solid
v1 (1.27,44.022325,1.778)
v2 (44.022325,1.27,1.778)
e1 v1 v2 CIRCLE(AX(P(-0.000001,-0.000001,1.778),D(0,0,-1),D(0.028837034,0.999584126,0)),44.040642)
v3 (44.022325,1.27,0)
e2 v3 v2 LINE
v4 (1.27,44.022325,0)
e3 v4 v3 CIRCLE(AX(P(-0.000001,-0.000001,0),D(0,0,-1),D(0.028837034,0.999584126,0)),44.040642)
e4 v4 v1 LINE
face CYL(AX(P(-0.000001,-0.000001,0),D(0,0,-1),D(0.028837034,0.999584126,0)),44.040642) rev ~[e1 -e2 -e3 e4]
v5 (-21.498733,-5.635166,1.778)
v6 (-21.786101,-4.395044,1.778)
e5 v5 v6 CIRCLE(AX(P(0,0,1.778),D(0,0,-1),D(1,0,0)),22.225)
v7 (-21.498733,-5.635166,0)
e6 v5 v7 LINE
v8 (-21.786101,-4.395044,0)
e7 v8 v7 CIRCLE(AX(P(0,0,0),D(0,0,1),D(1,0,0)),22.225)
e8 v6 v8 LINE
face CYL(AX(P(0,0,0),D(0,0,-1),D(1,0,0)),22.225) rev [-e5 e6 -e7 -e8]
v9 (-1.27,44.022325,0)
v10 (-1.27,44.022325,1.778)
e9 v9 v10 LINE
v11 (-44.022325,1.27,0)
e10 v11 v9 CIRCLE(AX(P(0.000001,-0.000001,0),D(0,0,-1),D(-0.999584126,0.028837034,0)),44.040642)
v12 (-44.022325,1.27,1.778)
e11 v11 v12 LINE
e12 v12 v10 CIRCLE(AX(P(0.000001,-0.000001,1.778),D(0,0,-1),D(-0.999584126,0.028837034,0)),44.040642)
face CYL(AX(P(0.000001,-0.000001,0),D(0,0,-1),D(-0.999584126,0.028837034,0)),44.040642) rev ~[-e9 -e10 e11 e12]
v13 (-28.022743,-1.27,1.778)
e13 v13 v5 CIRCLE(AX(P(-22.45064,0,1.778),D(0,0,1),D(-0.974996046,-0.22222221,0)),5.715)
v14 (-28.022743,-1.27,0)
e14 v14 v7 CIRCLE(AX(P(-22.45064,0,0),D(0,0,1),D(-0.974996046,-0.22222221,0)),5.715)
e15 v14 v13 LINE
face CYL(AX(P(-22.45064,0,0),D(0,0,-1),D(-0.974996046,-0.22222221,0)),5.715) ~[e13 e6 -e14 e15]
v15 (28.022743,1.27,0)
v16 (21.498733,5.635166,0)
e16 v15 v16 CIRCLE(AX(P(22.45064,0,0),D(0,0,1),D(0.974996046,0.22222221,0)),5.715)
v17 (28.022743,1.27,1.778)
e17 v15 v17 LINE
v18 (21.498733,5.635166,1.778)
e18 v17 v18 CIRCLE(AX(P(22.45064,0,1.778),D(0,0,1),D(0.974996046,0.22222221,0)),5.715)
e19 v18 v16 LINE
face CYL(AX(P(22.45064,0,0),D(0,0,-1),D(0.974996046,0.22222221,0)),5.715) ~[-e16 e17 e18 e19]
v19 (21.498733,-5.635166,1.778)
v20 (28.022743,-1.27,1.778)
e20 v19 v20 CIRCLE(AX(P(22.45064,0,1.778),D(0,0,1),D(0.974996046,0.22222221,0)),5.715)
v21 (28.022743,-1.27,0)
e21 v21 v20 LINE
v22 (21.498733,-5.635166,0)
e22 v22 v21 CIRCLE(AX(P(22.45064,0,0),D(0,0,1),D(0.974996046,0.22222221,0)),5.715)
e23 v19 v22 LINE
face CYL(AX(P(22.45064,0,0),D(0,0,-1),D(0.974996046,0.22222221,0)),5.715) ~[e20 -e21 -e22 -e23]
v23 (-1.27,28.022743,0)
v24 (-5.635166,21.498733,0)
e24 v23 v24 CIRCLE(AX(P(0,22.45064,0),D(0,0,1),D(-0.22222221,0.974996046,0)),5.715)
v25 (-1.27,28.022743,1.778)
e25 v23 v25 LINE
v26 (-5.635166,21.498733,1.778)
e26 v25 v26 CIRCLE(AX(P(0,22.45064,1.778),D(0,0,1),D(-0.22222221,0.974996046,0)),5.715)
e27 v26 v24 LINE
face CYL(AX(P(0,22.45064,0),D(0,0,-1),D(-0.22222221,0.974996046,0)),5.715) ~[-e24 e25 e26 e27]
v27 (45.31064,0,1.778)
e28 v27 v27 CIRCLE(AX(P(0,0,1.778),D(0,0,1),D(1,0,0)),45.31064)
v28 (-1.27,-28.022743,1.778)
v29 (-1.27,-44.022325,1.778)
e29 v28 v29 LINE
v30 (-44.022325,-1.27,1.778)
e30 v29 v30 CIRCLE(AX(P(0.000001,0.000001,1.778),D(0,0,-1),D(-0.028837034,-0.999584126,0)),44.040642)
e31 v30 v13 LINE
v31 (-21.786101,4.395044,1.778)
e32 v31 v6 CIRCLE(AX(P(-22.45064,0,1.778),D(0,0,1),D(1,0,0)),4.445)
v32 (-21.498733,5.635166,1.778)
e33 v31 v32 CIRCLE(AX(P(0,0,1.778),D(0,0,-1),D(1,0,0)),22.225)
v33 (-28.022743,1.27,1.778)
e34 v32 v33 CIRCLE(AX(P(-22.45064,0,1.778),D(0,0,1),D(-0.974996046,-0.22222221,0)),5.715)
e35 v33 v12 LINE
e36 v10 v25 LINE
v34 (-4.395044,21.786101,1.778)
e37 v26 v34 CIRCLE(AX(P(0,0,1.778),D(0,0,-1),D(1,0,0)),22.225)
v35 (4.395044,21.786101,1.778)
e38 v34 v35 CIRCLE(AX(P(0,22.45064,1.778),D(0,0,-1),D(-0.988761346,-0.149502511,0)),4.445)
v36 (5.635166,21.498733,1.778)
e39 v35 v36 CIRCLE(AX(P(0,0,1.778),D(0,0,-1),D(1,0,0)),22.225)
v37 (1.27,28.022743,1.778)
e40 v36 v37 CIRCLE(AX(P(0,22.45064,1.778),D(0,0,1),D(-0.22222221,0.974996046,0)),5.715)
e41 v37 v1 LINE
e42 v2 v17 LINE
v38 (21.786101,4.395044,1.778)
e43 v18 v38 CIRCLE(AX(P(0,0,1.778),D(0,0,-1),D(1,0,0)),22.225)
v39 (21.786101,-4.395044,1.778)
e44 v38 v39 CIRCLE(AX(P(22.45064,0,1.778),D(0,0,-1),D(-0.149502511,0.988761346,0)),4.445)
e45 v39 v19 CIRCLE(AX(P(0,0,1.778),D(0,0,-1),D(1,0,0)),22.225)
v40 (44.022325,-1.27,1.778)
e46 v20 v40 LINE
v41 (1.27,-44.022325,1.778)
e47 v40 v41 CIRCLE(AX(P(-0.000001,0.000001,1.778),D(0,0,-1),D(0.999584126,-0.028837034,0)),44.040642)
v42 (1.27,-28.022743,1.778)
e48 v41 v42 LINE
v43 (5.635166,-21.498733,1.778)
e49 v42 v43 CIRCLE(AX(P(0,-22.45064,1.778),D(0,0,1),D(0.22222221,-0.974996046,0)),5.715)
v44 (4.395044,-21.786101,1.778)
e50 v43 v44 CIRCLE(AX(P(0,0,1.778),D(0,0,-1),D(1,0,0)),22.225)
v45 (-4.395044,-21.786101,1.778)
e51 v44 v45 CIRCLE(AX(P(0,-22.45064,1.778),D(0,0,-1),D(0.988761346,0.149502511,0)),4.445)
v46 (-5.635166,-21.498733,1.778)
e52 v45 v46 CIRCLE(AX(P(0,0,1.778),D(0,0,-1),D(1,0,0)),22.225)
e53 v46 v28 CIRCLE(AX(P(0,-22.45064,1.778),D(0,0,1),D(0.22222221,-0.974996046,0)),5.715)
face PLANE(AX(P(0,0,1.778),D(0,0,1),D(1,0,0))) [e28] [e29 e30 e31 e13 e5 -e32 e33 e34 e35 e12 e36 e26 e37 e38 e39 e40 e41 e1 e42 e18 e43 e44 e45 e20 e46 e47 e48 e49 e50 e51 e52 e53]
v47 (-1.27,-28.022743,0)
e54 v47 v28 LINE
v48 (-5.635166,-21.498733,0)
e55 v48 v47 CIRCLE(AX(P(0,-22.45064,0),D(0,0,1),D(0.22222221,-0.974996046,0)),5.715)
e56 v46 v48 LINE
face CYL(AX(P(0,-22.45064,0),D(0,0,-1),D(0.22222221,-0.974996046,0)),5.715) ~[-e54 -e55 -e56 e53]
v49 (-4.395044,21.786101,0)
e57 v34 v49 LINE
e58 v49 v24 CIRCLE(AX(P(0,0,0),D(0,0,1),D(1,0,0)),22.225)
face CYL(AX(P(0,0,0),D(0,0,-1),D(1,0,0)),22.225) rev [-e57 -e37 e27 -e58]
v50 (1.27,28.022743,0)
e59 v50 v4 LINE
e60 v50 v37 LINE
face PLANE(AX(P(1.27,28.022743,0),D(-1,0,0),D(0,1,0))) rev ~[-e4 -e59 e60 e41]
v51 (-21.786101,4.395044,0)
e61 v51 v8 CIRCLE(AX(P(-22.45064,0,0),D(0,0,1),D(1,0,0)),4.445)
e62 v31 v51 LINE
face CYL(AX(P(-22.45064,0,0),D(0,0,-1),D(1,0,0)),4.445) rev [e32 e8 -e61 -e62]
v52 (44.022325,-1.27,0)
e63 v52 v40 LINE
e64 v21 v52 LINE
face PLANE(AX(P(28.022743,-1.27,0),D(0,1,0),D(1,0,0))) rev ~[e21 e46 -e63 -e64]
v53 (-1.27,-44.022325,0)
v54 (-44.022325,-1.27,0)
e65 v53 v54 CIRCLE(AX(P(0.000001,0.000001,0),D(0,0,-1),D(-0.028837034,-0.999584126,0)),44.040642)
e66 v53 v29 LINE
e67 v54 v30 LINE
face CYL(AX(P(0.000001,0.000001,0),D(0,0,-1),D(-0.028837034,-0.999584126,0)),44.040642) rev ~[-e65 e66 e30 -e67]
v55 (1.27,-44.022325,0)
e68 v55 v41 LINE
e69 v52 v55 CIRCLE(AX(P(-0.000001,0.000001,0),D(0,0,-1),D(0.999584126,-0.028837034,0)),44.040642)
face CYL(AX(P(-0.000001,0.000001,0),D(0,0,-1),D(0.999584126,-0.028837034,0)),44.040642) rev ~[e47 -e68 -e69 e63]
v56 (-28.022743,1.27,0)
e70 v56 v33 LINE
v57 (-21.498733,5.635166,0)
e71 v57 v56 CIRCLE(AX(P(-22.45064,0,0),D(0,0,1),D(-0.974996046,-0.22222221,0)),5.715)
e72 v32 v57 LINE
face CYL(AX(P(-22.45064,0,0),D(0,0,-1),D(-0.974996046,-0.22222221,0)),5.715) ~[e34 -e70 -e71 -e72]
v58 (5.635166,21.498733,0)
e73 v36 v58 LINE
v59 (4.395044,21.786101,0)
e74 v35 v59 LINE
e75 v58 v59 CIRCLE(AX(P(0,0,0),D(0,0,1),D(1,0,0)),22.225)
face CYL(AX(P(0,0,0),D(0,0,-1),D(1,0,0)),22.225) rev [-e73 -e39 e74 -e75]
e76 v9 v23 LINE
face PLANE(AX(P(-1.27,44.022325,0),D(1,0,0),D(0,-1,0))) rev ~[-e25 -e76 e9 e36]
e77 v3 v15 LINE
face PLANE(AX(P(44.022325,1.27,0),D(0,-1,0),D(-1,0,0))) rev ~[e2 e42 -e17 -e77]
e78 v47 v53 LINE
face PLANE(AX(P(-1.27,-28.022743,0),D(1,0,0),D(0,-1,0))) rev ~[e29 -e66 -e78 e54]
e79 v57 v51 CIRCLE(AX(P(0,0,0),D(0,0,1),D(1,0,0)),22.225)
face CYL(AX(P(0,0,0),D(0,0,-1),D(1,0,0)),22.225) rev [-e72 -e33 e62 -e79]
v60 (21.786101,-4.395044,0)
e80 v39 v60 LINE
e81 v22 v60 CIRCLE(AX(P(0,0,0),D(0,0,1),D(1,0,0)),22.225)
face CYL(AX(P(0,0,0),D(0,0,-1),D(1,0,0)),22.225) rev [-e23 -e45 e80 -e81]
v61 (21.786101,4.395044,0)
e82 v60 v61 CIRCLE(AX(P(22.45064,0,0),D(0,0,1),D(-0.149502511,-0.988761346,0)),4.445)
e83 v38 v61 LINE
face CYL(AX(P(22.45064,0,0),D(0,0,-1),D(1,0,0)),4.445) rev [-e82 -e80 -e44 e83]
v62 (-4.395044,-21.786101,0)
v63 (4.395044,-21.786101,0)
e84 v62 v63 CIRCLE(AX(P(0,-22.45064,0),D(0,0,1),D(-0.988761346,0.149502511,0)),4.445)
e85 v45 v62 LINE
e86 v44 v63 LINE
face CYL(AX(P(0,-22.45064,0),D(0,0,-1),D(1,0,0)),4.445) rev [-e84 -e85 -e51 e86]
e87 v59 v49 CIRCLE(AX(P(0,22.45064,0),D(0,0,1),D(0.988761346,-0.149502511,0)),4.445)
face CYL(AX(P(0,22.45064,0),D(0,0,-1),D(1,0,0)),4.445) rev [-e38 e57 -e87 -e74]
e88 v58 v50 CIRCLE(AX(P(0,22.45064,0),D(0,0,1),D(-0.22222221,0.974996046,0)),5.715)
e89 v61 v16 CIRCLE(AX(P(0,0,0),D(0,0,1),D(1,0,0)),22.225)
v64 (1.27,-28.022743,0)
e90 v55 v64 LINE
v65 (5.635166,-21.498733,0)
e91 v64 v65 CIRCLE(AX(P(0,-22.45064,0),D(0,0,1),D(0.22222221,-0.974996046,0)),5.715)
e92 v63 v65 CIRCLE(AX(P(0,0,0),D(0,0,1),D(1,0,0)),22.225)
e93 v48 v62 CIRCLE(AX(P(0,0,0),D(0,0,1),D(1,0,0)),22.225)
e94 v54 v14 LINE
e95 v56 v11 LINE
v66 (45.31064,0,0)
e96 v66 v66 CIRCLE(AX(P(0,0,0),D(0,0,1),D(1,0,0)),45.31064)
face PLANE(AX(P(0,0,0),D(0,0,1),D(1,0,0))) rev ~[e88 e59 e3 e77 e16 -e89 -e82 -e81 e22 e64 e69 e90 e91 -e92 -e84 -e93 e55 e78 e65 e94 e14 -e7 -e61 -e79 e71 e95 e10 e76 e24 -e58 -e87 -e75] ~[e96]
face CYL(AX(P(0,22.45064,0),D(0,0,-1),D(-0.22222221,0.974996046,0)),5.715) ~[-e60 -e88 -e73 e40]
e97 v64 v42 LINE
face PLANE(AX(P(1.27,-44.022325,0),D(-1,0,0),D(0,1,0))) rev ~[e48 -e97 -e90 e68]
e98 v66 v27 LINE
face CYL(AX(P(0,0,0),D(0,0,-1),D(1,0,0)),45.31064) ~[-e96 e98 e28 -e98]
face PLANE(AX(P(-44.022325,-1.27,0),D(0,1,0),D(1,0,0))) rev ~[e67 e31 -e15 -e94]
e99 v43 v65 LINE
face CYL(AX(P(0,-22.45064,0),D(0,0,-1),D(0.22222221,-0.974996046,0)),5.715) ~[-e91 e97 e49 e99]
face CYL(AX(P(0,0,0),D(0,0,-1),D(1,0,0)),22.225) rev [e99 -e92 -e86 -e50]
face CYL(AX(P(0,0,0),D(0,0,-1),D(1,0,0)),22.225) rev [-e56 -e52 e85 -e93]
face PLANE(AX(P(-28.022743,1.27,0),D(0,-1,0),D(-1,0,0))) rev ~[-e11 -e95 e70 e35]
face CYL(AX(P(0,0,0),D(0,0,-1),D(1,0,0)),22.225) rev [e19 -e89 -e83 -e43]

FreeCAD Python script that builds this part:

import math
import FreeCAD as App
import Part
import Sketcher

V = App.Vector
Q = App.Units.Quantity

doc = App.newDocument("Part")
body = doc.addObject("PartDesign::Body", "Body")

sketch1 = body.newObject("Sketcher::SketchObject", "Sketch")
sketch1.AttachmentSupport = (doc.getObject("XY_Plane"), [""])
sketch1.MapMode = "FlatFace"
sketch1.addGeometry([
    Part.Circle(V(0, 0, 0), V(0, 0, 1), 45.31064),
    Part.Circle(V(0, -22.45064, 0), V(0, 0, 1), 4.445),
    Part.Circle(V(-22.45064, 0, 0), V(0, 0, 1), 4.445),
    Part.Circle(V(0, 22.45064, 0), V(0, 0, 1), 4.445),
    Part.ArcOfCircle(Part.Circle(V(0.000001, -0.000001, 0), V(0, 0, 1), 44.040642), math.radians(91.652469), math.radians(178.347531)),
    Part.LineSegment(V(-1.27, 44.022325, 0), V(-1.27, 28.022743, 0)),
    Part.ArcOfCircle(Part.Circle(V(0, 22.45064, 0), V(0, 0, 1), 5.715), math.radians(102.839588), math.radians(437.160412)),
    Part.LineSegment(V(1.27, 28.022743, 0), V(1.27, 44.022325, 0)),
    Part.ArcOfCircle(Part.Circle(V(-0.000001, -0.000001, 0), V(0, 0, 1), 44.040642), math.radians(1.652469), math.radians(88.347531)),
    Part.LineSegment(V(44.022325, 1.27, 0), V(28.022743, 1.27, 0)),
    Part.ArcOfCircle(Part.Circle(V(22.45064, 0, 0), V(0, 0, 1), 5.715), math.radians(12.839588), math.radians(347.160412)),
    Part.LineSegment(V(28.022743, -1.27, 0), V(44.022325, -1.27, 0)),
    Part.ArcOfCircle(Part.Circle(V(-0.000001, 0.000001, 0), V(0, 0, 1), 44.040642), math.radians(-88.347531), math.radians(-1.652469)),
    Part.LineSegment(V(1.27, -44.022325, 0), V(1.27, -28.022743, 0)),
    Part.ArcOfCircle(Part.Circle(V(0, -22.45064, 0), V(0, 0, 1), 5.715), math.radians(-77.160412), math.radians(257.160412)),
    Part.LineSegment(V(-1.27, -28.022743, 0), V(-1.27, -44.022325, 0)),
    Part.ArcOfCircle(Part.Circle(V(0.000001, 0.000001, 0), V(0, 0, 1), 44.040642), math.radians(-178.347531), math.radians(-91.652469)),
    Part.LineSegment(V(-44.022325, -1.27, 0), V(-28.022743, -1.27, 0)),
    Part.ArcOfCircle(Part.Circle(V(-22.45064, 0, 0), V(0, 0, 1), 5.715), math.radians(-167.160412), math.radians(167.160412)),
    Part.LineSegment(V(-28.022743, 1.27, 0), V(-44.022325, 1.27, 0)),
    Part.Circle(V(22.45064, 0, 0), V(0, 0, 1), 4.445),
], False)
sketch1.addConstraint([
    Sketcher.Constraint("Coincident", 4, 1, 5, 1),
    Sketcher.Constraint("Coincident", 5, 2, 6, 1),
    Sketcher.Constraint("Coincident", 6, 2, 7, 1),
    Sketcher.Constraint("Coincident", 7, 2, 8, 2),
    Sketcher.Constraint("Coincident", 8, 1, 9, 1),
    Sketcher.Constraint("Coincident", 9, 2, 10, 1),
    Sketcher.Constraint("Coincident", 10, 2, 11, 1),
    Sketcher.Constraint("Coincident", 11, 2, 12, 2),
    Sketcher.Constraint("Coincident", 12, 1, 13, 1),
    Sketcher.Constraint("Coincident", 13, 2, 14, 1),
    Sketcher.Constraint("Coincident", 14, 2, 15, 1),
    Sketcher.Constraint("Coincident", 15, 2, 16, 2),
    Sketcher.Constraint("Coincident", 16, 1, 17, 1),
    Sketcher.Constraint("Coincident", 17, 2, 18, 1),
    Sketcher.Constraint("Coincident", 18, 2, 19, 1),
    Sketcher.Constraint("Coincident", 19, 2, 4, 2),
    Sketcher.Constraint("Vertical", 5),
    Sketcher.Constraint("Vertical", 7),
    Sketcher.Constraint("Horizontal", 9),
    Sketcher.Constraint("Horizontal", 11),
    Sketcher.Constraint("Vertical", 13),
    Sketcher.Constraint("Vertical", 15),
    Sketcher.Constraint("Horizontal", 17),
    Sketcher.Constraint("Horizontal", 19),
    Sketcher.Constraint("Coincident", 0, 3, -1, 1),
    Sketcher.Constraint("Coincident", 4, 3, -1, 1),
    Sketcher.Constraint("Coincident", 8, 3, -1, 1),
    Sketcher.Constraint("Coincident", 12, 3, -1, 1),
    Sketcher.Constraint("Coincident", 16, 3, -1, 1),
    Sketcher.Constraint("Coincident", 6, 3, 3, 3),
    Sketcher.Constraint("Coincident", 14, 3, 1, 3),
    Sketcher.Constraint("Coincident", 18, 3, 2, 3),
    Sketcher.Constraint("Coincident", 20, 3, 10, 3),
    Sketcher.Constraint("Equal", 1, 2),
    Sketcher.Constraint("Equal", 2, 3),
    Sketcher.Constraint("Equal", 4, 8),
    Sketcher.Constraint("Equal", 6, 10),
    Sketcher.Constraint("Equal", 8, 12),
    Sketcher.Constraint("Equal", 10, 14),
    Sketcher.Constraint("Equal", 12, 16),
    Sketcher.Constraint("Equal", 14, 18),
    Sketcher.Constraint("Equal", 3, 20),
    Sketcher.Constraint("Symmetric", 1, 3, 3, 3, -1, 1),
    Sketcher.Constraint("Symmetric", 2, 3, 10, 3, -1, 1),
    Sketcher.Constraint("Symmetric", 5, 2, 6, 2, -2),
    Sketcher.Constraint("Symmetric", 10, 2, 17, 2, -2),
    Sketcher.Constraint("Horizontal", 13, 2, 14, 2),
    Sketcher.Constraint("Horizontal", 9, 2, 18, 2),
    Sketcher.Constraint("Vertical", 9, 2, 10, 2),
    Sketcher.Constraint("Vertical", 7, 2, 12, 1),
    Sketcher.Constraint("Equal", 19, 5),
    Sketcher.Constraint("Diameter", 1, Q("0.35 in")),
    Sketcher.Constraint("Radius", 6, Q("0.225 in")),
    Sketcher.Constraint("DistanceX", 5, 2, 6, 2, Q("0.1 in")),
    Sketcher.Constraint("DistanceY", 10, 2, 9, 2, Q("0.1 in")),
    Sketcher.Constraint("Diameter", 0, Q("90.62128 mm")),
    Sketcher.Constraint("Radius", 4, Q("44.040642 mm")),
    Sketcher.Constraint("DistanceX", 9, 2, 9, 1, Q("15.999582 mm")),
])
pad1 = body.newObject("PartDesign::Pad", "Pad")
pad1.Profile = sketch1
pad1.Length = Q("0.07 in")

sketch2 = body.newObject("Sketcher::SketchObject", "Sketch001")
sketch2.AttachmentSupport = (doc.getObject("XY_Plane"), [""])
sketch2.MapMode = "FlatFace"
sketch2.addGeometry(Part.Circle(V(0, 0, 0), V(0, 0, 1), 22.225), False)
sketch2.addConstraint([
    Sketcher.Constraint("Coincident", 0, 3, -1, 1),
    Sketcher.Constraint("Diameter", 0, Q("1.75 in")),
])
pocket1 = body.newObject("PartDesign::Pocket", "Pocket")
pocket1.Profile = sketch2
pocket1.Length = Q("0.5 in")
pocket1.Reversed = True

doc.recompute()
